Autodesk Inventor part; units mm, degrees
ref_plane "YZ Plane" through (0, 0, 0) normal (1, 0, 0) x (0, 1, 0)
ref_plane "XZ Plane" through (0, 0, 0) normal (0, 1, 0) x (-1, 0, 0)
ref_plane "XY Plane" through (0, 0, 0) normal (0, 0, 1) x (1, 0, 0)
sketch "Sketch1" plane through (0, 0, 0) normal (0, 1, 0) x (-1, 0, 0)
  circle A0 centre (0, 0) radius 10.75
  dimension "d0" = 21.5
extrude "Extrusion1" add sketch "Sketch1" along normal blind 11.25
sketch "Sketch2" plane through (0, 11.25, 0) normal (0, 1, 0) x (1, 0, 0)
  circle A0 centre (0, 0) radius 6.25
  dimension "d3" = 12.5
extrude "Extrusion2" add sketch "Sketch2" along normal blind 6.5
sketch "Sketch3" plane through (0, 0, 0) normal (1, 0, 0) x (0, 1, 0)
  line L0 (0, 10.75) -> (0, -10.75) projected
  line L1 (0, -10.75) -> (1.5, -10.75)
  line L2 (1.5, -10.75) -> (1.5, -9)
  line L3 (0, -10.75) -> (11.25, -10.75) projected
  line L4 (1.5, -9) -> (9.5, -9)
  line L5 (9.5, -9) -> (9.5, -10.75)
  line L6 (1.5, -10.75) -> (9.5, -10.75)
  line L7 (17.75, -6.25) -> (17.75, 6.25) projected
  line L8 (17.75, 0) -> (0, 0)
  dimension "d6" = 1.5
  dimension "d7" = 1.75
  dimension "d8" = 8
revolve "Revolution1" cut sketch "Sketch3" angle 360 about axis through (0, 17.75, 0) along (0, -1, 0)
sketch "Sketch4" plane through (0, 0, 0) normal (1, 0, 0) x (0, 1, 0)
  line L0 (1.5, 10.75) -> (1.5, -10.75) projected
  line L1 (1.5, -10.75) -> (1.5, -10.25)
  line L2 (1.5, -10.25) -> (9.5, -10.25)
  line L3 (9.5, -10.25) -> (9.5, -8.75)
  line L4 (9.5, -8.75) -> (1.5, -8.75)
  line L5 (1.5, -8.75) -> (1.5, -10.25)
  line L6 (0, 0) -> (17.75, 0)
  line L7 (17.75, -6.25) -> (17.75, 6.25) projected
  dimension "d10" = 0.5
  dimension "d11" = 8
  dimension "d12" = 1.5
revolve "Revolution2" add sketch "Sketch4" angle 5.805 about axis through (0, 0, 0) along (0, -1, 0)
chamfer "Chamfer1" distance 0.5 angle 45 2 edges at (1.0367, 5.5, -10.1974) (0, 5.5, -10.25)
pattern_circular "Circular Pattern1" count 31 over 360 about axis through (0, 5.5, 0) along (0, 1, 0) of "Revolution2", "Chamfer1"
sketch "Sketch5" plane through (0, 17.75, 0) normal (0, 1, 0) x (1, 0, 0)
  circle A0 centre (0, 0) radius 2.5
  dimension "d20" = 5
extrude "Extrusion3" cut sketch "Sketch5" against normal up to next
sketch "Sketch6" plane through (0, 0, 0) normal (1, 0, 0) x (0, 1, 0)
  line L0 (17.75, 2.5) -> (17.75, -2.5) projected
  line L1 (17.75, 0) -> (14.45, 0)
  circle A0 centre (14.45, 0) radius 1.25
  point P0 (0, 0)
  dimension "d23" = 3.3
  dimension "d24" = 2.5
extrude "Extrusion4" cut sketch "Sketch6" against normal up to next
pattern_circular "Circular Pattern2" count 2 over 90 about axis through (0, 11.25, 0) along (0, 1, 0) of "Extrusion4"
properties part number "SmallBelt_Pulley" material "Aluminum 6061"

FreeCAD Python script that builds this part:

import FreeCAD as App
import Part
import Sketcher
Q = App.Units.Quantity


def edges_at(feature, points):
    """Names of the edges that pass closest to the given points."""
    edges = feature.Shape.Edges
    near = lambda p: min(range(len(edges)), key=lambda i: edges[i].distToShape(Part.Vertex(*p))[0])
    return sorted({f"Edge{near(p) + 1}" for p in points})


def add_polygon(sketch, points):
    """Adds a closed chain of lines whose ends are joined by coincident constraints."""
    first, n = sketch.GeometryCount, len(points)
    for a, b in zip(points, points[1:] + points[:1]):
        sketch.addGeometry(Part.LineSegment(App.Vector(*a, 0), App.Vector(*b, 0)), False)
    for i in range(n):
        sketch.addConstraint(Sketcher.Constraint("Coincident", first + i, 2, first + (i + 1) % n, 1))

doc = App.newDocument("Part")
body = doc.addObject("PartDesign::Body", "Body")

sketch1 = body.newObject("Sketcher::SketchObject", "Sketch")
sketch1.AttachmentSupport = (doc.getObject("XZ_Plane"), [""])
sketch1.MapMode = "FlatFace"
sketch1.addGeometry(Part.Circle(App.Vector(0, 0, 0), App.Vector(0, 0, 1), 11), False)
sketch1.addConstraint([
    Sketcher.Constraint("Coincident", 0, 3, -1, 1),
    Sketcher.Constraint("Diameter", 0, Q("21.5 mm")),
])
pad1 = body.newObject("PartDesign::Pad", "Pad")
pad1.Profile = sketch1
pad1.Length = 11.25
pad1.Reversed = True

sketch2 = body.newObject("Sketcher::SketchObject", "Sketch001")
sketch2.AttachmentSupport = (doc.getObject("XZ_Plane"), [""])
sketch2.MapMode = "FlatFace"
sketch2.AttachmentOffset = App.Placement(App.Vector(0, 0, -11.25), App.Rotation())
sketch2.addGeometry(Part.Circle(App.Vector(0, 0, 0), App.Vector(0, 0, 1), 6), False)
sketch2.addConstraint([
    Sketcher.Constraint("Coincident", 0, 3, -1, 1),
    Sketcher.Constraint("Diameter", 0, Q("12.5 mm")),
])
pad2 = body.newObject("PartDesign::Pad", "Pad001")
pad2.Profile = sketch2
pad2.Length = 6.5
pad2.Reversed = True

sketch3 = body.newObject("Sketcher::SketchObject", "Sketch002")
sketch3.AttachmentSupport = (doc.getObject("YZ_Plane"), [""])
sketch3.MapMode = "FlatFace"
add_polygon(sketch3, [(1.5, -9), (1.5, -10.8), (9.5, -10.8), (9.5, -9)])
sketch3.addConstraint([
    Sketcher.Constraint("Vertical", 0),
    Sketcher.Constraint("Horizontal", 1),
    Sketcher.Constraint("Vertical", 2),
    Sketcher.Constraint("Horizontal", 3),
    Sketcher.Constraint("DistanceX", 1, 1, 1, 2, Q("8 mm")),
    Sketcher.Constraint("DistanceY", 0, 2, 0, 1, Q("1.75 mm")),
    Sketcher.Constraint("DistanceX", -1, 1, 0, 2, Q("1.5 mm")),
    Sketcher.Constraint("DistanceY", 2, 2, -1, 1, Q("9 mm")),
])
groove = body.newObject("PartDesign::Groove", "Groove")
groove.Profile = sketch3
groove.ReferenceAxis = (sketch3, ["H_Axis"])
groove.Angle = 360

sketch4 = body.newObject("Sketcher::SketchObject", "Sketch003")
sketch4.AttachmentSupport = (doc.getObject("YZ_Plane"), [""])
sketch4.MapMode = "FlatFace"
add_polygon(sketch4, [(9.5, -8.8), (1.5, -8.8), (1.5, -10.2), (9.5, -10.2)])
sketch4.addConstraint([
    Sketcher.Constraint("Horizontal", 0),
    Sketcher.Constraint("Vertical", 1),
    Sketcher.Constraint("Horizontal", 2),
    Sketcher.Constraint("Vertical", 3),
    Sketcher.Constraint("DistanceX", 0, 2, 0, 1, Q("8 mm")),
    Sketcher.Constraint("DistanceY", 1, 2, 1, 1, Q("1.5 mm")),
    Sketcher.Constraint("DistanceX", -1, 1, 0, 2, Q("1.5 mm")),
    Sketcher.Constraint("DistanceY", 0, 2, -1, 1, Q("8.75 mm")),
])
revolution = body.newObject("PartDesign::Revolution", "Revolution")
revolution.Profile = sketch4
revolution.ReferenceAxis = (sketch4, ["H_Axis"])
revolution.Angle = 5.805
revolution.Reversed = True
doc.recompute()

chamfer = body.newObject("PartDesign::Chamfer", "Chamfer")
chamfer.Base = (revolution, edges_at(revolution, [(1.037, 5.5, -10.197), (0, 5.5, -10.25)]))
chamfer.Size = 0.5
doc.recompute()

polarpattern = body.newObject("PartDesign::PolarPattern", "PolarPattern")
polarpattern.Originals = [revolution, chamfer]
polarpattern.Axis = (doc.getObject("Y_Axis"), [""])
polarpattern.Angle = 360
polarpattern.Occurrences = 31
body.Tip = polarpattern

sketch5 = body.newObject("Sketcher::SketchObject", "Sketch004")
sketch5.AttachmentSupport = (doc.getObject("XZ_Plane"), [""])
sketch5.MapMode = "FlatFace"
sketch5.AttachmentOffset = App.Placement(App.Vector(0, 0, -17.75), App.Rotation())
sketch5.addGeometry(Part.Circle(App.Vector(0, 0, 0), App.Vector(0, 0, 1), 2.5), False)
sketch5.addConstraint([
    Sketcher.Constraint("Coincident", 0, 3, -1, 1),
    Sketcher.Constraint("Diameter", 0, Q("5 mm")),
])
pocket1 = body.newObject("PartDesign::Pocket", "Pocket")
pocket1.Profile = sketch5
pocket1.Type = "UpToFirst"
pocket1.Reversed = True

sketch6 = body.newObject("Sketcher::SketchObject", "Sketch005")
sketch6.AttachmentSupport = (doc.getObject("YZ_Plane"), [""])
sketch6.MapMode = "FlatFace"
sketch6.addGeometry(Part.Circle(App.Vector(14.4, 0, 0), App.Vector(0, 0, 1), 1.2), False)
sketch6.addConstraint([
    Sketcher.Constraint("PointOnObject", 0, 3, -1),
    Sketcher.Constraint("Diameter", 0, Q("2.5 mm")),
    Sketcher.Constraint("DistanceX", -1, 1, 0, 3, Q("14.45 mm")),
])
pocket2 = body.newObject("PartDesign::Pocket", "Pocket001")
pocket2.Profile = sketch6
pocket2.Length = 6.25
doc.recompute()

polarpattern2 = body.newObject("PartDesign::PolarPattern", "PolarPattern001")
polarpattern2.Originals = [pocket2]
polarpattern2.Axis = (doc.getObject("Y_Axis"), [""])
polarpattern2.Angle = 90
polarpattern2.Occurrences = 2
body.Tip = polarpattern2

doc.recompute()
